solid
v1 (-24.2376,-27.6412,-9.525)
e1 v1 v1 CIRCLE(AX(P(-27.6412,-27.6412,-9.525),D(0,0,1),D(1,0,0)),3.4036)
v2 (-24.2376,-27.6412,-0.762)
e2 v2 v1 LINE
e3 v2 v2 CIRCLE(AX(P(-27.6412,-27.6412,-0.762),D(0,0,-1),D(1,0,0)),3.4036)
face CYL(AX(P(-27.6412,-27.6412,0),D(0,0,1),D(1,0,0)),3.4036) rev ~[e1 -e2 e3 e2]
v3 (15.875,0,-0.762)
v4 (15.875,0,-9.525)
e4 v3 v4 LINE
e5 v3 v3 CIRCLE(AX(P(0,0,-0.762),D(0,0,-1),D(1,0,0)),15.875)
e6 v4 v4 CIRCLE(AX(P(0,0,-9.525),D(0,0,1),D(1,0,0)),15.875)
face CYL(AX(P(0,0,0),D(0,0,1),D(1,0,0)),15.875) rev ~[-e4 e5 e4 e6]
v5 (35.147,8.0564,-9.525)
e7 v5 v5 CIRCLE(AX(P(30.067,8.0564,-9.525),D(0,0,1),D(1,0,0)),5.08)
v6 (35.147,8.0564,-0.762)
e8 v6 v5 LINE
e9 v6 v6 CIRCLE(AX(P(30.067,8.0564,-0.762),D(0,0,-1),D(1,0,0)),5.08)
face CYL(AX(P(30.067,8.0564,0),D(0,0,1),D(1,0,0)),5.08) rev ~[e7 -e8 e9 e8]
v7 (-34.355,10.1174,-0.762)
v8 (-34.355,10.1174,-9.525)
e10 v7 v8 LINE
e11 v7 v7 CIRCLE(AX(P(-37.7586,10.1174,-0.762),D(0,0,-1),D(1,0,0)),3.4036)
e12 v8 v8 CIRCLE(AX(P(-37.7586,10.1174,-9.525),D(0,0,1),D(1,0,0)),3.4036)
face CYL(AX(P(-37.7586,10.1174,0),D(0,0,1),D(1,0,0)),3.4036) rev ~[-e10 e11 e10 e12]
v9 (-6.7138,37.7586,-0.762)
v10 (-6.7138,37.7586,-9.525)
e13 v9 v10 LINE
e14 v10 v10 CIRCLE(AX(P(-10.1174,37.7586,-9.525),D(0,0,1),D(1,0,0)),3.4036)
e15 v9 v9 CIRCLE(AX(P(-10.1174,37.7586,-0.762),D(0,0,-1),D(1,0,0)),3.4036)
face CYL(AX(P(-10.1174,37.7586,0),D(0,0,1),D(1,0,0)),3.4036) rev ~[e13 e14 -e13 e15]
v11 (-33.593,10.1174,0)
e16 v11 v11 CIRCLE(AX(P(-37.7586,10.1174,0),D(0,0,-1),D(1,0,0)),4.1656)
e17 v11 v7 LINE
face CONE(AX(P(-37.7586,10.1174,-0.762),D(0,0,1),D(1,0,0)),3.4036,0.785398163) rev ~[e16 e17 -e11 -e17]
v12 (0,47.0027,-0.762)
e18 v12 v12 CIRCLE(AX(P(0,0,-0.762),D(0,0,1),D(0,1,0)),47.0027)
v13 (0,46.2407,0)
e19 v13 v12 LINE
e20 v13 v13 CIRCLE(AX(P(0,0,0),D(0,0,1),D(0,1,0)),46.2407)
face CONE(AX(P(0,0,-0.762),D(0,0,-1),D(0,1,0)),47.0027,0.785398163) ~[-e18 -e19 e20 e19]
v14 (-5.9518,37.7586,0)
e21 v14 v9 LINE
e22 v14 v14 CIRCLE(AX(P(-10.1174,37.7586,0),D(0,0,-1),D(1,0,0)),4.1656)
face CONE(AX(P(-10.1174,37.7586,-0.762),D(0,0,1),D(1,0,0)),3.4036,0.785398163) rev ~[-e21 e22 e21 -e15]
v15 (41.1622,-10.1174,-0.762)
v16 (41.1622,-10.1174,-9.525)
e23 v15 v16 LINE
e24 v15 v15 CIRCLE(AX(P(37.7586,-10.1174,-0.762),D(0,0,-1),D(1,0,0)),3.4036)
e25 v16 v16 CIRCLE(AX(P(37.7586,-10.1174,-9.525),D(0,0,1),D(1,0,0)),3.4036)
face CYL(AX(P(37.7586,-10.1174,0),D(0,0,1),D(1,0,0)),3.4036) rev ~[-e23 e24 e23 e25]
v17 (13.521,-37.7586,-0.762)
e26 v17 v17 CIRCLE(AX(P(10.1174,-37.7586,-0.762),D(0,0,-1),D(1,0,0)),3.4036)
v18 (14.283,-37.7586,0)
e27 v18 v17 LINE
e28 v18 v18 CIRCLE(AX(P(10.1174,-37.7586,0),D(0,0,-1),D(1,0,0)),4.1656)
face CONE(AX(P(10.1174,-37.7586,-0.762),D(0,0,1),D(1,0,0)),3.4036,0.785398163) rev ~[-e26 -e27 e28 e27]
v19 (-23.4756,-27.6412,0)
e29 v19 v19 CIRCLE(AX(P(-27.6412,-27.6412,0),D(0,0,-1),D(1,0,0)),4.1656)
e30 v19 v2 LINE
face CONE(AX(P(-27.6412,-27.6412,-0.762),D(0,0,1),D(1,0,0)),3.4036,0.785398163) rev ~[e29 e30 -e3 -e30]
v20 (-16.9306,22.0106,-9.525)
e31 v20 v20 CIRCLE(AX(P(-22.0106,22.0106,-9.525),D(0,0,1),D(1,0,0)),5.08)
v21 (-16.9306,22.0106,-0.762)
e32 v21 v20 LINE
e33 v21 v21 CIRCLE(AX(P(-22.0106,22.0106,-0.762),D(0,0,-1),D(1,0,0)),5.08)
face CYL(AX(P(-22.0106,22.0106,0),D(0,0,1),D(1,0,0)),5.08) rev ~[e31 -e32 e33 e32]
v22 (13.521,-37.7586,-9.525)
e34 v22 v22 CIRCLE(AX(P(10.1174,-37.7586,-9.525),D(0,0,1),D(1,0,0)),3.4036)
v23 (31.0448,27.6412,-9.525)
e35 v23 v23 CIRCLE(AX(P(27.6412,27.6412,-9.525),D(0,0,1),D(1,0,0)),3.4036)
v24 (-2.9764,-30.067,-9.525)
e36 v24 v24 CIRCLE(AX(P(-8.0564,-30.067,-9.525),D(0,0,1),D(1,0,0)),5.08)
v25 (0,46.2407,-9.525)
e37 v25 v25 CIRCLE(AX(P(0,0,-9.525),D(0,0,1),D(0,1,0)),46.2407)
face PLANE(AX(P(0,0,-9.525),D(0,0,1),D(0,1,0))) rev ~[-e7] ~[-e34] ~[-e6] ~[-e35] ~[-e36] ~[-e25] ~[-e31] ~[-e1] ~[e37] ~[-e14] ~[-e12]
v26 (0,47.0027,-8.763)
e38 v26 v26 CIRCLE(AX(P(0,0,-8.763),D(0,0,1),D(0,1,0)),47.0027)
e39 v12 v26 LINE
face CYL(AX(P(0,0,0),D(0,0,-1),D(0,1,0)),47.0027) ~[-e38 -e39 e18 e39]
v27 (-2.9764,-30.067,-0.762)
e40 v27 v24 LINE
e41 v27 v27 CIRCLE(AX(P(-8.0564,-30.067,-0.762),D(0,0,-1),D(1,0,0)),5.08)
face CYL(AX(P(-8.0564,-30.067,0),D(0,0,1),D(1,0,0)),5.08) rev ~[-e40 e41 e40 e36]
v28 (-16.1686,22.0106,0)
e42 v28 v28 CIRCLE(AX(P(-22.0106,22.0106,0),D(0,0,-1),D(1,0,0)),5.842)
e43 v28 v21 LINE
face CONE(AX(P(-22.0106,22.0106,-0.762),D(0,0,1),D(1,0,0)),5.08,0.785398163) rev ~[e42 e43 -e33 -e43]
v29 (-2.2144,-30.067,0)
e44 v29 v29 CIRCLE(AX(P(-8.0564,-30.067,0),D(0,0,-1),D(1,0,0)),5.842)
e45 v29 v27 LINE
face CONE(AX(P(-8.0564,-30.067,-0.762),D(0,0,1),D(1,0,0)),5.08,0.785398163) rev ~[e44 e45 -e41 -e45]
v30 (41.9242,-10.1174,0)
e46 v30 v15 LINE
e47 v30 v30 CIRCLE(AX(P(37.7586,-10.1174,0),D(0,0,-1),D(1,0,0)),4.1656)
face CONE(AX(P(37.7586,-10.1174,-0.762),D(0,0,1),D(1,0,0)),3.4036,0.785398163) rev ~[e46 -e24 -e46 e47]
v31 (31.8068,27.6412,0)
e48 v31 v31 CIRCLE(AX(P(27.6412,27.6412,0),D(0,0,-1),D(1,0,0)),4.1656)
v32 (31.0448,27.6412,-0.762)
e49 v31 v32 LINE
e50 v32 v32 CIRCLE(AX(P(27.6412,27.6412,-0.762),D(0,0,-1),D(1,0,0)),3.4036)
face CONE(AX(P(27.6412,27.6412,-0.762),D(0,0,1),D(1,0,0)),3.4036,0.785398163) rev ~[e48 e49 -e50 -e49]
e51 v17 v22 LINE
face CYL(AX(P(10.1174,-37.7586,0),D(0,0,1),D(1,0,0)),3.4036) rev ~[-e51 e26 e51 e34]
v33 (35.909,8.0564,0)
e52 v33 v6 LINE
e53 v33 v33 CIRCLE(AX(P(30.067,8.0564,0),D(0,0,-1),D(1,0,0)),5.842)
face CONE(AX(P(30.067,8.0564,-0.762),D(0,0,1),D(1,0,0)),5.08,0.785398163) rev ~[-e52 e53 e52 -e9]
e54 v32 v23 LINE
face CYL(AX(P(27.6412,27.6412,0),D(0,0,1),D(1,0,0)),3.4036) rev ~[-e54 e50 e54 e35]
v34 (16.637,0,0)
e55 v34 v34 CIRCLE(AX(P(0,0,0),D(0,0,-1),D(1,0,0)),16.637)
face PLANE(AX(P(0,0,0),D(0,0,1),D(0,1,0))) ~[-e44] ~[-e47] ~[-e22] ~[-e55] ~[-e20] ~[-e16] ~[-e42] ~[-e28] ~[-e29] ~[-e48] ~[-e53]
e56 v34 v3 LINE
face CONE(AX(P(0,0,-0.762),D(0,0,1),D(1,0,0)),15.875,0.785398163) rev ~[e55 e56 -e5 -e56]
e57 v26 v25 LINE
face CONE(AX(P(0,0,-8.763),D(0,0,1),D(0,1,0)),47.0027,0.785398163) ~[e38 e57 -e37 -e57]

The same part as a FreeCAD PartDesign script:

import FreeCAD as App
import Part
import Sketcher
from FreeCAD import Vector
Q = App.Units.Quantity


def edges_at(feature, points):
    """Names of the edges that pass closest to the given points."""
    edges = feature.Shape.Edges
    near = lambda p: min(range(len(edges)), key=lambda i: edges[i].distToShape(Part.Vertex(*p))[0])
    return sorted({f"Edge{near(p) + 1}" for p in points})

doc = App.newDocument("Part")
body = doc.addObject("PartDesign::Body", "Body")

sketch1 = doc.addObject("Sketcher::SketchObject", "Sketch")
body.addObject(sketch1)
sketch1.AttachmentSupport = (doc.YZ_Plane, [""])
sketch1.MapMode = "FlatFace"
sketch1.addGeometry([
    Part.LineSegment(Vector(47, 0, 0), Vector(0, 0, 0)),
    Part.LineSegment(Vector(0, 0, 0), Vector(0, -10, 0)),
    Part.LineSegment(Vector(0, -10, 0), Vector(47, -10, 0)),
    Part.LineSegment(Vector(47, -10, 0), Vector(47, 0, 0)),
], False)
sketch1.addConstraint([
    Sketcher.Constraint("Coincident", 0, 2, 1, 1),
    Sketcher.Constraint("Coincident", 1, 2, 2, 1),
    Sketcher.Constraint("Coincident", 2, 2, 3, 1),
    Sketcher.Constraint("Coincident", 3, 2, 0, 1),
    Sketcher.Constraint("Horizontal", 0),
    Sketcher.Constraint("Vertical", 1),
    Sketcher.Constraint("Horizontal", 2),
    Sketcher.Constraint("Vertical", 3),
    Sketcher.Constraint("Coincident", 0, 2, -1, 1),
    Sketcher.Constraint("DistanceY", 1, 2, 1, 1, Q("0.375 in")),
    Sketcher.Constraint("DistanceX", 0, 2, 0, 1, Q("1.8505 in")),
])
revolution = doc.addObject("PartDesign::Revolution", "Revolution")
body.addObject(revolution)
revolution.Profile = sketch1
revolution.ReferenceAxis = (sketch1, ["V_Axis"])
revolution.Angle = 360

sketch2 = doc.addObject("Sketcher::SketchObject", "Sketch001")
body.addObject(sketch2)
sketch2.AttachmentSupport = (doc.XY_Plane, [""])
sketch2.MapMode = "FlatFace"
sketch2.addGeometry([
    Part.Circle(Vector(27.6, 27.6, 0), Vector(0, 0, 1), 3.4),
    Part.Circle(Vector(37.8, -10.1, 0), Vector(0, 0, 1), 3.4),
    Part.Circle(Vector(10.1, -37.8, 0), Vector(0, 0, 1), 3.4),
    Part.Circle(Vector(-10.1, 37.8, 0), Vector(0, 0, 1), 3.4),
    Part.Circle(Vector(-27.6, -27.6, 0), Vector(0, 0, 1), 3.4),
    Part.Circle(Vector(-37.8, 10.1, 0), Vector(0, 0, 1), 3.4),
], False)
sketch2.addConstraint([
    Sketcher.Constraint("Equal", 0, 1),
    Sketcher.Constraint("Equal", 1, 2),
    Sketcher.Constraint("Equal", 2, 3),
    Sketcher.Constraint("Equal", 3, 4),
    Sketcher.Constraint("Equal", 4, 5),
    Sketcher.Constraint("Symmetric", 2, 3, 3, 3, -1, 1),
    Sketcher.Constraint("Symmetric", 0, 3, 4, 3, -1, 1),
    Sketcher.Constraint("Symmetric", 1, 3, 5, 3, -1, 1),
    Sketcher.Constraint("Diameter", 0, Q("0.268 in")),
    Sketcher.Constraint("DistanceY", 2, 3, 0, 3, Q("2.5748 in")),
    Sketcher.Constraint("DistanceX", 4, 3, 1, 3, Q("2.5748 in")),
    Sketcher.Constraint("DistanceX", -1, 1, 0, 3, Q("27.6412 mm")),
    Sketcher.Constraint("DistanceY", -1, 1, 0, 3, Q("27.6412 mm")),
    Sketcher.Constraint("DistanceY", 1, 3, -1, 1, Q("10.1174 mm")),
    Sketcher.Constraint("DistanceX", -1, 1, 2, 3, Q("10.1174 mm")),
])
pocket1 = doc.addObject("PartDesign::Pocket", "Pocket")
body.addObject(pocket1)
pocket1.Profile = sketch2
pocket1.Length = Q("0.375 in")

sketch3 = doc.addObject("Sketcher::SketchObject", "Sketch002")
body.addObject(sketch3)
sketch3.AttachmentSupport = (doc.XY_Plane, [""])
sketch3.MapMode = "FlatFace"
sketch3.addGeometry([
    Part.Circle(Vector(0, 0, 0), Vector(0, 0, 1), 16),
    Part.Circle(Vector(30, 8, 0), Vector(0, 0, 1), 5),
    Part.Circle(Vector(-8, -30, 0), Vector(0, 0, 1), 5),
    Part.Circle(Vector(-22, 22, 0), Vector(0, 0, 1), 5),
], False)
sketch3.addConstraint([
    Sketcher.Constraint("Coincident", 0, 3, -1, 1),
    Sketcher.Constraint("Equal", 1, 2),
    Sketcher.Constraint("Equal", 2, 3),
    Sketcher.Constraint("Diameter", 1, Q("0.4 in")),
    Sketcher.Constraint("Diameter", 0, Q("1.25 in")),
    Sketcher.Constraint("DistanceX", 3, 3, 1, 3, Q("2.0503 in")),
    Sketcher.Constraint("DistanceY", 2, 3, 3, 3, Q("2.0503 in")),
    Sketcher.Constraint("DistanceX", -1, 1, 1, 3, Q("30.067 mm")),
    Sketcher.Constraint("DistanceY", -1, 1, 1, 3, Q("8.0564 mm")),
    Sketcher.Constraint("DistanceX", 2, 3, -1, 1, Q("8.0564 mm")),
    Sketcher.Constraint("DistanceY", 2, 3, -1, 1, Q("30.067 mm")),
])
pocket2 = doc.addObject("PartDesign::Pocket", "Pocket001")
body.addObject(pocket2)
pocket2.Profile = sketch3
pocket2.Length = Q("0.375 in")
doc.recompute()

chamfer = doc.addObject("PartDesign::Chamfer", "Chamfer")
body.addObject(chamfer)
chamfer.Base = (pocket2, edges_at(pocket2, [
    (-15.875, 0, 0),
    (0, -47.003, 0),
    (0, -47.003, -9.525),
    (24.987, 8.056, 0),
    (24.238, 27.641, 0),
    (-13.521, 37.759, 0),
    (-27.091, 22.011, 0),
    (-41.162, 10.117, 0),
    (-31.045, -27.641, 0),
    (-13.136, -30.067, 0),
    (6.714, -37.759, 0),
    (34.355, -10.117, 0),
]))
chamfer.Size = Q("0.03 in")

doc.recompute()
